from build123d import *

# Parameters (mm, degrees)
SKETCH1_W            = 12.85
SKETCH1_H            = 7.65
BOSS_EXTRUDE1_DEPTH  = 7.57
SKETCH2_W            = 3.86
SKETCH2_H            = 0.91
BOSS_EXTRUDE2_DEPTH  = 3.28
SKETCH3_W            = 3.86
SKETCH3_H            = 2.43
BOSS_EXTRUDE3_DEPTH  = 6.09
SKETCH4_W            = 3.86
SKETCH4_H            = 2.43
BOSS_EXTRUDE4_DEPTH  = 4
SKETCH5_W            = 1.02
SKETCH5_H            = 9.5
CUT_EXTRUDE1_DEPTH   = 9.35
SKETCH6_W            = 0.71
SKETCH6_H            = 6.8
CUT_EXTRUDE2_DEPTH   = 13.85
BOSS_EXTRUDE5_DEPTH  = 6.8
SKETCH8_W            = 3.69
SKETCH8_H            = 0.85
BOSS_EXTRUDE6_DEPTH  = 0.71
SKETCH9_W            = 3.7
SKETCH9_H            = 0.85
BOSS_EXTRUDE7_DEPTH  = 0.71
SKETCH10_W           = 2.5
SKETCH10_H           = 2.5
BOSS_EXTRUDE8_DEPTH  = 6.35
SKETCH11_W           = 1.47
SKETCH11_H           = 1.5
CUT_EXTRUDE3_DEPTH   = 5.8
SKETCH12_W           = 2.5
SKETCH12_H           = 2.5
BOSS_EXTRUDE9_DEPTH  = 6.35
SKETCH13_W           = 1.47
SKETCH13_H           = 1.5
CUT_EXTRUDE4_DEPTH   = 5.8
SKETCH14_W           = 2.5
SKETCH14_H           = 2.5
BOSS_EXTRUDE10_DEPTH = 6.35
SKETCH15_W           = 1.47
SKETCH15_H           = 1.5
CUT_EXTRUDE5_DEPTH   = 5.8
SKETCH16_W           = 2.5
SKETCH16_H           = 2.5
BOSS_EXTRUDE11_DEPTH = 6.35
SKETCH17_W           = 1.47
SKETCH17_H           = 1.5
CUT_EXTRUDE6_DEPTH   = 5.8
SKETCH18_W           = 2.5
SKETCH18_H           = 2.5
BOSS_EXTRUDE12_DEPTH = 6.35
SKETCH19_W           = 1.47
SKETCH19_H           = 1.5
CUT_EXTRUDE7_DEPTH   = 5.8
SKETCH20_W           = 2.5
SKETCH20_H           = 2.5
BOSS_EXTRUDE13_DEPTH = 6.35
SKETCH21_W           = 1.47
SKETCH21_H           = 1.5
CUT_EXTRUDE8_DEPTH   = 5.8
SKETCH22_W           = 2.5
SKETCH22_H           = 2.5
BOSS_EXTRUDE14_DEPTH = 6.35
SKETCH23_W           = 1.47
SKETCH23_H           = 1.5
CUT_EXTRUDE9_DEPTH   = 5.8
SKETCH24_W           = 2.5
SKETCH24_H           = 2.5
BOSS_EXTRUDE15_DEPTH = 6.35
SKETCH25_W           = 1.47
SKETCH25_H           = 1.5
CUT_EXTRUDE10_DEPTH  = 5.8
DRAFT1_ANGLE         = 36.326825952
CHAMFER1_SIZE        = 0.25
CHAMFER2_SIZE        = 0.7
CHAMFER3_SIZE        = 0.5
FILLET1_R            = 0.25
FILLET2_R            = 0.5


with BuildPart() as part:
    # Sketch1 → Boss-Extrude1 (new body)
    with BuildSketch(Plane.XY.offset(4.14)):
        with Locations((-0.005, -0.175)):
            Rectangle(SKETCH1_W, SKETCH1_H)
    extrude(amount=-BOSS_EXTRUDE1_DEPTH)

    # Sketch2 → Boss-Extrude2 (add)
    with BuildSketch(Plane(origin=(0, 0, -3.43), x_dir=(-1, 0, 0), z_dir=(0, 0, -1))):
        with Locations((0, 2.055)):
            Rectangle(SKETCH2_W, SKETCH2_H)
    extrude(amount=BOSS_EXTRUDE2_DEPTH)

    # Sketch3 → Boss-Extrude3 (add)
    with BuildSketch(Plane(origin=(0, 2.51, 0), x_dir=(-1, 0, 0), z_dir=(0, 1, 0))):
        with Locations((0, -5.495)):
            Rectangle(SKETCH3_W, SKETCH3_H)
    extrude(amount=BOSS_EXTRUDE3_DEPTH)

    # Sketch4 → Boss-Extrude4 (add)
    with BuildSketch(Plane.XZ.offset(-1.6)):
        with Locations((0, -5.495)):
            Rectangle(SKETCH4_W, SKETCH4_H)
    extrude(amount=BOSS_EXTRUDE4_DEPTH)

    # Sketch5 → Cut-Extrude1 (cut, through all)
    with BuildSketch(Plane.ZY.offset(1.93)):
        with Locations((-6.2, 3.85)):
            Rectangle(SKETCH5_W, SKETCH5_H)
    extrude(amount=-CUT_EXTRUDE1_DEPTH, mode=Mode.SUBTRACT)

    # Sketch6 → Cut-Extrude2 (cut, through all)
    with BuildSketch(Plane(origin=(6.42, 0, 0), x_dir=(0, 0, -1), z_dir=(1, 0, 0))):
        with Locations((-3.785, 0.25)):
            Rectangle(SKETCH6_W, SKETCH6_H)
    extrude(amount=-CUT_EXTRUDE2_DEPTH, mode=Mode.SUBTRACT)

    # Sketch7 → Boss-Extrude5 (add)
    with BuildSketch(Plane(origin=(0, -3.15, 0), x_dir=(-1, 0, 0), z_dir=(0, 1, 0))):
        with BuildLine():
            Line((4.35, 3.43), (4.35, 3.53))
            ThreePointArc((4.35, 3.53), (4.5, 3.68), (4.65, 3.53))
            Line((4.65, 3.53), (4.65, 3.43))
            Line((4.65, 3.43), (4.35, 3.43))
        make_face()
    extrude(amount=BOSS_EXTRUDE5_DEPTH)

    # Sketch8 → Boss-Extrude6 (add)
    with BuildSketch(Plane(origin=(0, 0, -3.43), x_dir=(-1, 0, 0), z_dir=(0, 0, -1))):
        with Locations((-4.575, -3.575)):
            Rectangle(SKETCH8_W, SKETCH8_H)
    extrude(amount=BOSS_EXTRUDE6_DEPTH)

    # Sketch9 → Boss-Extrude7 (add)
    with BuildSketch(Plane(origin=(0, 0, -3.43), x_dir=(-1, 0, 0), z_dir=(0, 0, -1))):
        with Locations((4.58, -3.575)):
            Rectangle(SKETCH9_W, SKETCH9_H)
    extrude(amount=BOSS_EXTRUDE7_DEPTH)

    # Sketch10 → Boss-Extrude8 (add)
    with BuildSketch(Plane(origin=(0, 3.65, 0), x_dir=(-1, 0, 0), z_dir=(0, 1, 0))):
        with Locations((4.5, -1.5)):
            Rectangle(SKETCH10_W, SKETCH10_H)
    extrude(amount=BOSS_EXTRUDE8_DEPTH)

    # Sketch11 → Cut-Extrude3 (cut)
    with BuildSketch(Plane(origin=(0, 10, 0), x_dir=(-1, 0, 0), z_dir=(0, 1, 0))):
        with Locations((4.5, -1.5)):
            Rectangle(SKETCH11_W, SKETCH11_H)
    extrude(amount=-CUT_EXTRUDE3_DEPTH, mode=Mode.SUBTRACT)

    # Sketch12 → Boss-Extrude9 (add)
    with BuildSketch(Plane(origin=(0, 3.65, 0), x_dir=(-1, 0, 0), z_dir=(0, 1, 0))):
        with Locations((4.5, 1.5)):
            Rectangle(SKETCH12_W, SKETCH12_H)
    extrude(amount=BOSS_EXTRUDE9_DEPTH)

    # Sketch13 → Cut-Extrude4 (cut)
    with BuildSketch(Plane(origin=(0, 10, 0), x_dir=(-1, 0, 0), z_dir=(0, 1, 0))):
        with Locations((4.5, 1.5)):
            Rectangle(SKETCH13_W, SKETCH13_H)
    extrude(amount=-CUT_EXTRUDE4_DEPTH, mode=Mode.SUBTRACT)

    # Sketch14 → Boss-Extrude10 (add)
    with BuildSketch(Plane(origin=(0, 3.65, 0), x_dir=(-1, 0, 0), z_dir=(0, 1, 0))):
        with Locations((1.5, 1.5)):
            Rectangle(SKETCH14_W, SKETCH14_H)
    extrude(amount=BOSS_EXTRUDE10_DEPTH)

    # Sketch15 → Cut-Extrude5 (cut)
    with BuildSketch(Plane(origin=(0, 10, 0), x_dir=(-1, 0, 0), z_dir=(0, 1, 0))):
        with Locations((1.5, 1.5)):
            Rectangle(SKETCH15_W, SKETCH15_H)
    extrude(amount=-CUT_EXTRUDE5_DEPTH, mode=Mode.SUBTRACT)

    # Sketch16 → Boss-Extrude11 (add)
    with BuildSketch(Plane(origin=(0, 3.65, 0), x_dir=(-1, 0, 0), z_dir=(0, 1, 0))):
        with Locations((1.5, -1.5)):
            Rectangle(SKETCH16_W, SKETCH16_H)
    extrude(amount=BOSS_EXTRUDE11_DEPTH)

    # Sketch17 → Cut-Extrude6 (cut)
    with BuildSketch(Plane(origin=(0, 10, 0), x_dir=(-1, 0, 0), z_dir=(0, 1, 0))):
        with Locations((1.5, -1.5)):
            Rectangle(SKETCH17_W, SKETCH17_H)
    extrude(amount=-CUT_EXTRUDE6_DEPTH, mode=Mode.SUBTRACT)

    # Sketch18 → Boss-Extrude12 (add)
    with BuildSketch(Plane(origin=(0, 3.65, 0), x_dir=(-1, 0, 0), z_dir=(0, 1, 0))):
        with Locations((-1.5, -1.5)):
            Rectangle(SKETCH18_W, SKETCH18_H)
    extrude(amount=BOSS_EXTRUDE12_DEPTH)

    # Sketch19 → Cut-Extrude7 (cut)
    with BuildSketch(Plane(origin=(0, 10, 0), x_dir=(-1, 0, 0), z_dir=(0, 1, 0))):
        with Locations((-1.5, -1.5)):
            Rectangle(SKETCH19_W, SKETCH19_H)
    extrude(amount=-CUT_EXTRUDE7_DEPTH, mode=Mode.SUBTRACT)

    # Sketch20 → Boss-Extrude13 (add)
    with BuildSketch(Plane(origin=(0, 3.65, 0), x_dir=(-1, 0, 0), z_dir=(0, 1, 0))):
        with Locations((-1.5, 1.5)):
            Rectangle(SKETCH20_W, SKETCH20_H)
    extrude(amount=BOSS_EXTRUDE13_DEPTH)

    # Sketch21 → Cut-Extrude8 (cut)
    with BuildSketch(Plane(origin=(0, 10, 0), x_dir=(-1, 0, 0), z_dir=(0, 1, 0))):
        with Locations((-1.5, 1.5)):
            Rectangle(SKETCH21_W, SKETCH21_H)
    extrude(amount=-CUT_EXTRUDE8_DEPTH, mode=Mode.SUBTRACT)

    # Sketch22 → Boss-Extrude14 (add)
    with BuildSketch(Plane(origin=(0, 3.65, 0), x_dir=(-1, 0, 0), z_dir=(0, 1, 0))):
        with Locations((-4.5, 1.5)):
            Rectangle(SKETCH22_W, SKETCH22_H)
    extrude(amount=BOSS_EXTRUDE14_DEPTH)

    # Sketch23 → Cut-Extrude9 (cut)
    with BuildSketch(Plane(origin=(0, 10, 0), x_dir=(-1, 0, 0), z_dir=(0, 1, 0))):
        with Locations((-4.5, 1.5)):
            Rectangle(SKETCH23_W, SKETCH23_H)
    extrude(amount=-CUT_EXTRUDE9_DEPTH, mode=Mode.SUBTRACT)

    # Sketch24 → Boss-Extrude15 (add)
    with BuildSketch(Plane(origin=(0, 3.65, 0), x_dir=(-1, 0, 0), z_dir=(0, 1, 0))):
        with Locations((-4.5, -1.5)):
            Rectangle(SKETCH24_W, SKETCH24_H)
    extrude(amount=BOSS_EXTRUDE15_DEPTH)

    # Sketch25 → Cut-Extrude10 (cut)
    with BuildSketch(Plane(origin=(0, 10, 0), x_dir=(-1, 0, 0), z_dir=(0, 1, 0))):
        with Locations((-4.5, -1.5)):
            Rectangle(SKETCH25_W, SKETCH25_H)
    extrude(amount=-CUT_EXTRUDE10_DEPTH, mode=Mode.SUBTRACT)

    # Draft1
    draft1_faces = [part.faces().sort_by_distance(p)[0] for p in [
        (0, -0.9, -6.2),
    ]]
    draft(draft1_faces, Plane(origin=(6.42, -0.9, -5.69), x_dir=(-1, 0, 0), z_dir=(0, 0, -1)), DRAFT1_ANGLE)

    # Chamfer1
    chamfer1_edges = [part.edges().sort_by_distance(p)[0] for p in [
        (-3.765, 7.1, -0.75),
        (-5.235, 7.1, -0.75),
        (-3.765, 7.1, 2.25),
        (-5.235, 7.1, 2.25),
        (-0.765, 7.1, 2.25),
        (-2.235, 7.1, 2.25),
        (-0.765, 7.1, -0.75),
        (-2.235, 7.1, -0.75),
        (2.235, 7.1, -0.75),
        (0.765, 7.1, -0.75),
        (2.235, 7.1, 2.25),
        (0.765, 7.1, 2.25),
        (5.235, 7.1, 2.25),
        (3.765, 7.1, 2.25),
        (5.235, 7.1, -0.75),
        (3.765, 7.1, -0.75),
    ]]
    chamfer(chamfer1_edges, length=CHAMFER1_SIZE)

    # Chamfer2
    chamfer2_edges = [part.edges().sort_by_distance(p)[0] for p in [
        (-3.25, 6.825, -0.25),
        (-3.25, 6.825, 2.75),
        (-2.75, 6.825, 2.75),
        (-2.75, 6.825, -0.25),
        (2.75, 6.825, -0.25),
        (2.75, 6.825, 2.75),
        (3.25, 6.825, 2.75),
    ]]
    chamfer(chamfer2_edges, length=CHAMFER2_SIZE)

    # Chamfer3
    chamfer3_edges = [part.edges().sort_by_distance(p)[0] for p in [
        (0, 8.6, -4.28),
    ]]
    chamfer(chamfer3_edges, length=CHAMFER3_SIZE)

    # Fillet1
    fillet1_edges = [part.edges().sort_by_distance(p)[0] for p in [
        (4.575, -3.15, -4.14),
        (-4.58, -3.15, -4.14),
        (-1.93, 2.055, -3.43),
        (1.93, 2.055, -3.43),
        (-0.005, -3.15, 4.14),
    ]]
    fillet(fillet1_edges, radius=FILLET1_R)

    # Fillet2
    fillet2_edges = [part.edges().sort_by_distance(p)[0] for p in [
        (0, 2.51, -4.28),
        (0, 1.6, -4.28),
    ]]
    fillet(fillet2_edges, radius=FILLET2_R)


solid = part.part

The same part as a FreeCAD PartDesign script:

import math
import FreeCAD as App
import Part
import Sketcher
Q = App.Units.Quantity


def edges_at(feature, points):
    """Names of the edges that pass closest to the given points."""
    edges = feature.Shape.Edges
    near = lambda p: min(range(len(edges)), key=lambda i: edges[i].distToShape(Part.Vertex(*p))[0])
    return sorted({f"Edge{near(p) + 1}" for p in points})


def faces_at(feature, points):
    """Names of the faces that lie closest to the given points."""
    faces = feature.Shape.Faces
    near = lambda p: min(range(len(faces)), key=lambda i: faces[i].distToShape(Part.Vertex(*p))[0])
    return sorted({f"Face{near(p) + 1}" for p in points})

doc = App.newDocument("Part")
body = doc.addObject("PartDesign::Body", "Body")

sketch1 = body.newObject("Sketcher::SketchObject", "Sketch")
sketch1.AttachmentSupport = (doc.getObject("XY_Plane"), [""])
sketch1.MapMode = "FlatFace"
sketch1.AttachmentOffset = App.Placement(App.Vector(0, 0, 4.14), App.Rotation())
sketch1.addGeometry([
    Part.LineSegment(App.Vector(-6, 4, 0), App.Vector(-6, -4, 0)),
    Part.LineSegment(App.Vector(-6, -4, 0), App.Vector(6, -4, 0)),
    Part.LineSegment(App.Vector(6, -4, 0), App.Vector(6, 4, 0)),
    Part.LineSegment(App.Vector(6, 4, 0), App.Vector(-6, 4, 0)),
], False)
sketch1.addConstraint([
    Sketcher.Constraint("Coincident", 0, 2, 1, 1),
    Sketcher.Constraint("Coincident", 1, 2, 2, 1),
    Sketcher.Constraint("Coincident", 2, 2, 3, 1),
    Sketcher.Constraint("Coincident", 3, 2, 0, 1),
    Sketcher.Constraint("Vertical", 0),
    Sketcher.Constraint("Horizontal", 1),
    Sketcher.Constraint("Vertical", 2),
    Sketcher.Constraint("Horizontal", 3),
    Sketcher.Constraint("DistanceY", 0, 2, -1, 1, Q("4 mm")),
    Sketcher.Constraint("DistanceX", 1, 1, 1, 2, Q("12.85 mm")),
    Sketcher.Constraint("DistanceY", 0, 2, 0, 1, Q("7.65 mm")),
    Sketcher.Constraint("DistanceX", 0, 2, -1, 1, Q("6.43 mm")),
])
pad1 = body.newObject("PartDesign::Pad", "Pad")
pad1.Profile = sketch1
pad1.Length = 7.57
pad1.Reversed = True

sketch2 = body.newObject("Sketcher::SketchObject", "Sketch001")
sketch2.AttachmentSupport = (doc.getObject("XY_Plane"), [""])
sketch2.MapMode = "FlatFace"
sketch2.AttachmentOffset = App.Placement(App.Vector(0, 0, -3.43), App.Rotation())
sketch2.addGeometry([
    Part.LineSegment(App.Vector(1.9, 2.5, 0), App.Vector(1.9, 1.6, 0)),
    Part.LineSegment(App.Vector(1.9, 1.6, 0), App.Vector(-1.9, 1.6, 0)),
    Part.LineSegment(App.Vector(-1.9, 1.6, 0), App.Vector(-1.9, 2.5, 0)),
    Part.LineSegment(App.Vector(-1.9, 2.5, 0), App.Vector(1.9, 2.5, 0)),
], False)
sketch2.addConstraint([
    Sketcher.Constraint("Coincident", 0, 2, 1, 1),
    Sketcher.Constraint("Coincident", 1, 2, 2, 1),
    Sketcher.Constraint("Coincident", 2, 2, 3, 1),
    Sketcher.Constraint("Coincident", 3, 2, 0, 1),
    Sketcher.Constraint("Vertical", 0),
    Sketcher.Constraint("Horizontal", 1),
    Sketcher.Constraint("Vertical", 2),
    Sketcher.Constraint("Horizontal", 3),
    Sketcher.Constraint("DistanceX", 1, 2, 1, 1, Q("3.86 mm")),
    Sketcher.Constraint("DistanceY", 0, 2, 0, 1, Q("0.91 mm")),
    Sketcher.Constraint("DistanceY", -1, 1, 0, 2, Q("1.6 mm")),
    Sketcher.Constraint("DistanceX", -1, 1, 0, 2, Q("1.93 mm")),
])
pad2 = body.newObject("PartDesign::Pad", "Pad001")
pad2.Profile = sketch2
pad2.Length = 3.28
pad2.Reversed = True

sketch3 = body.newObject("Sketcher::SketchObject", "Sketch002")
sketch3.AttachmentSupport = (doc.getObject("XZ_Plane"), [""])
sketch3.MapMode = "FlatFace"
sketch3.AttachmentOffset = App.Placement(App.Vector(0, 0, -2.51), App.Rotation())
sketch3.addGeometry([
    Part.LineSegment(App.Vector(1.9, -4.3, 0), App.Vector(1.9, -6.7, 0)),
    Part.LineSegment(App.Vector(1.9, -6.7, 0), App.Vector(-1.9, -6.7, 0)),
    Part.LineSegment(App.Vector(-1.9, -6.7, 0), App.Vector(-1.9, -4.3, 0)),
    Part.LineSegment(App.Vector(-1.9, -4.3, 0), App.Vector(1.9, -4.3, 0)),
], False)
sketch3.addConstraint([
    Sketcher.Constraint("Coincident", 0, 2, 1, 1),
    Sketcher.Constraint("Coincident", 1, 2, 2, 1),
    Sketcher.Constraint("Coincident", 2, 2, 3, 1),
    Sketcher.Constraint("Coincident", 3, 2, 0, 1),
    Sketcher.Constraint("Vertical", 0),
    Sketcher.Constraint("Horizontal", 1),
    Sketcher.Constraint("Vertical", 2),
    Sketcher.Constraint("Horizontal", 3),
    Sketcher.Constraint("DistanceX", 1, 2, 1, 1, Q("3.86 mm")),
    Sketcher.Constraint("DistanceY", 0, 2, 0, 1, Q("2.43 mm")),
    Sketcher.Constraint("DistanceX", -1, 1, 0, 2, Q("1.93 mm")),
    Sketcher.Constraint("DistanceY", 0, 2, -1, 1, Q("6.71 mm")),
])
pad3 = body.newObject("PartDesign::Pad", "Pad002")
pad3.Profile = sketch3
pad3.Length = 6.09
pad3.Reversed = True

sketch4 = body.newObject("Sketcher::SketchObject", "Sketch003")
sketch4.AttachmentSupport = (doc.getObject("XZ_Plane"), [""])
sketch4.MapMode = "FlatFace"
sketch4.AttachmentOffset = App.Placement(App.Vector(0, 0, -1.6), App.Rotation())
sketch4.addGeometry([
    Part.LineSegment(App.Vector(-1.9, -4.3, 0), App.Vector(-1.9, -6.7, 0)),
    Part.LineSegment(App.Vector(-1.9, -6.7, 0), App.Vector(1.9, -6.7, 0)),
    Part.LineSegment(App.Vector(1.9, -6.7, 0), App.Vector(1.9, -4.3, 0)),
    Part.LineSegment(App.Vector(1.9, -4.3, 0), App.Vector(-1.9, -4.3, 0)),
], False)
sketch4.addConstraint([
    Sketcher.Constraint("Coincident", 0, 2, 1, 1),
    Sketcher.Constraint("Coincident", 1, 2, 2, 1),
    Sketcher.Constraint("Coincident", 2, 2, 3, 1),
    Sketcher.Constraint("Coincident", 3, 2, 0, 1),
    Sketcher.Constraint("Vertical", 0),
    Sketcher.Constraint("Horizontal", 1),
    Sketcher.Constraint("Vertical", 2),
    Sketcher.Constraint("Horizontal", 3),
    Sketcher.Constraint("DistanceX", 1, 1, 1, 2, Q("3.86 mm")),
    Sketcher.Constraint("DistanceY", 0, 2, 0, 1, Q("2.43 mm")),
    Sketcher.Constraint("DistanceX", 0, 2, -1, 1, Q("1.93 mm")),
    Sketcher.Constraint("DistanceY", 0, 2, -1, 1, Q("6.71 mm")),
])
pad4 = body.newObject("PartDesign::Pad", "Pad003")
pad4.Profile = sketch4
pad4.Length = 4

sketch5 = body.newObject("Sketcher::SketchObject", "Sketch004")
sketch5.AttachmentSupport = (doc.getObject("YZ_Plane"), [""])
sketch5.MapMode = "FlatFace"
sketch5.AttachmentOffset = App.Placement(App.Vector(0, 0, -1.93), App.Rotation())
sketch5.addGeometry([
    Part.LineSegment(App.Vector(8.6, -6.7, 0), App.Vector(-0.9, -6.7, 0)),
    Part.LineSegment(App.Vector(-0.9, -6.7, 0), App.Vector(-0.9, -5.7, 0)),
    Part.LineSegment(App.Vector(-0.9, -5.7, 0), App.Vector(8.6, -5.7, 0)),
    Part.LineSegment(App.Vector(8.6, -5.7, 0), App.Vector(8.6, -6.7, 0)),
], False)
sketch5.addConstraint([
    Sketcher.Constraint("Coincident", 0, 2, 1, 1),
    Sketcher.Constraint("Coincident", 1, 2, 2, 1),
    Sketcher.Constraint("Coincident", 2, 2, 3, 1),
    Sketcher.Constraint("Coincident", 3, 2, 0, 1),
    Sketcher.Constraint("Horizontal", 0),
    Sketcher.Constraint("Vertical", 1),
    Sketcher.Constraint("Horizontal", 2),
    Sketcher.Constraint("Vertical", 3),
    Sketcher.Constraint("DistanceX", 0, 2, 0, 1, Q("9.5 mm")),
    Sketcher.Constraint("DistanceY", 1, 1, 1, 2, Q("1.02 mm")),
    Sketcher.Constraint("DistanceX", 0, 2, -1, 1, Q("0.9 mm")),
    Sketcher.Constraint("DistanceY", 0, 2, -1, 1, Q("6.71 mm")),
])
pocket1 = body.newObject("PartDesign::Pocket", "Pocket")
pocket1.Profile = sketch5
pocket1.Type = "ThroughAll"
pocket1.Reversed = True

sketch6 = body.newObject("Sketcher::SketchObject", "Sketch005")
sketch6.AttachmentSupport = (doc.getObject("YZ_Plane"), [""])
sketch6.MapMode = "FlatFace"
sketch6.AttachmentOffset = App.Placement(App.Vector(0, 0, 6.42), App.Rotation())
sketch6.addGeometry([
    Part.LineSegment(App.Vector(3.6, 4.1, 0), App.Vector(-3.1, 4.1, 0)),
    Part.LineSegment(App.Vector(-3.1, 4.1, 0), App.Vector(-3.1, 3.4, 0)),
    Part.LineSegment(App.Vector(-3.1, 3.4, 0), App.Vector(3.6, 3.4, 0)),
    Part.LineSegment(App.Vector(3.6, 3.4, 0), App.Vector(3.6, 4.1, 0)),
], False)
sketch6.addConstraint([
    Sketcher.Constraint("Coincident", 0, 2, 1, 1),
    Sketcher.Constraint("Coincident", 1, 2, 2, 1),
    Sketcher.Constraint("Coincident", 2, 2, 3, 1),
    Sketcher.Constraint("Coincident", 3, 2, 0, 1),
    Sketcher.Constraint("Horizontal", 0),
    Sketcher.Constraint("Vertical", 1),
    Sketcher.Constraint("Horizontal", 2),
    Sketcher.Constraint("Vertical", 3),
    Sketcher.Constraint("DistanceX", 0, 2, 0, 1, Q("6.8 mm")),
    Sketcher.Constraint("DistanceY", 1, 2, 1, 1, Q("0.71 mm")),
    Sketcher.Constraint("DistanceX", 0, 2, -1, 1, Q("3.15 mm")),
    Sketcher.Constraint("DistanceY", -1, 1, 0, 2, Q("4.14 mm")),
])
pocket2 = body.newObject("PartDesign::Pocket", "Pocket001")
pocket2.Profile = sketch6
pocket2.Type = "ThroughAll"

sketch7 = body.newObject("Sketcher::SketchObject", "Sketch006")
sketch7.AttachmentSupport = (doc.getObject("XZ_Plane"), [""])
sketch7.MapMode = "FlatFace"
sketch7.AttachmentOffset = App.Placement(App.Vector(0, 0, 3.15), App.Rotation())
sketch7.addGeometry([
    Part.LineSegment(App.Vector(-4.35, 3.53, 0), App.Vector(-4.35, 3.43, 0)),
    Part.LineSegment(App.Vector(-4.35, 3.43, 0), App.Vector(-4.65, 3.43, 0)),
    Part.LineSegment(App.Vector(-4.65, 3.43, 0), App.Vector(-4.65, 3.53, 0)),
    Part.ArcOfCircle(Part.Circle(App.Vector(-4.5, 3.53, 0), App.Vector(0, 0, 1), 0.15), math.radians(0), math.radians(180)),
], False)
sketch7.addConstraint([
    Sketcher.Constraint("Coincident", 0, 2, 1, 1),
    Sketcher.Constraint("Coincident", 1, 2, 2, 1),
    Sketcher.Constraint("Tangent", 2, 2, 3, 2),
    Sketcher.Constraint("Tangent", 3, 1, 0, 1),
    Sketcher.Constraint("Vertical", 0),
    Sketcher.Constraint("Horizontal", 1),
    Sketcher.Constraint("Vertical", 2),
    Sketcher.Constraint("Radius", 3, Q("0.15 mm")),
    Sketcher.Constraint("DistanceY", 0, 2, 0, 1, Q("0.1 mm")),
    Sketcher.Constraint("DistanceX", 3, 3, -1, 1, Q("4.5 mm")),
    Sketcher.Constraint("DistanceY", -1, 1, 3, 3, Q("3.53 mm")),
])
pad5 = body.newObject("PartDesign::Pad", "Pad004")
pad5.Profile = sketch7
pad5.Length = 6.8
pad5.Reversed = True

sketch8 = body.newObject("Sketcher::SketchObject", "Sketch007")
sketch8.AttachmentSupport = (doc.getObject("XY_Plane"), [""])
sketch8.MapMode = "FlatFace"
sketch8.AttachmentOffset = App.Placement(App.Vector(0, 0, -3.43), App.Rotation())
sketch8.addGeometry([
    Part.LineSegment(App.Vector(6.4, -3.1, 0), App.Vector(6.4, -4, 0)),
    Part.LineSegment(App.Vector(6.4, -4, 0), App.Vector(2.7, -4, 0)),
    Part.LineSegment(App.Vector(2.7, -4, 0), App.Vector(2.7, -3.1, 0)),
    Part.LineSegment(App.Vector(2.7, -3.1, 0), App.Vector(6.4, -3.1, 0)),
], False)
sketch8.addConstraint([
    Sketcher.Constraint("Coincident", 0, 2, 1, 1),
    Sketcher.Constraint("Coincident", 1, 2, 2, 1),
    Sketcher.Constraint("Coincident", 2, 2, 3, 1),
    Sketcher.Constraint("Coincident", 3, 2, 0, 1),
    Sketcher.Constraint("Vertical", 0),
    Sketcher.Constraint("Horizontal", 1),
    Sketcher.Constraint("Vertical", 2),
    Sketcher.Constraint("Horizontal", 3),
    Sketcher.Constraint("DistanceY", 0, 2, -1, 1, Q("4 mm")),
    Sketcher.Constraint("DistanceX", 1, 2, 1, 1, Q("3.69 mm")),
    Sketcher.Constraint("DistanceY", 0, 2, 0, 1, Q("0.85 mm")),
    Sketcher.Constraint("DistanceX", -1, 1, 0, 2, Q("6.42 mm")),
])
pad6 = body.newObject("PartDesign::Pad", "Pad005")
pad6.Profile = sketch8
pad6.Length = 0.71
pad6.Reversed = True

sketch9 = body.newObject("Sketcher::SketchObject", "Sketch008")
sketch9.AttachmentSupport = (doc.getObject("XY_Plane"), [""])
sketch9.MapMode = "FlatFace"
sketch9.AttachmentOffset = App.Placement(App.Vector(0, 0, -3.43), App.Rotation())
sketch9.addGeometry([
    Part.LineSegment(App.Vector(-2.7, -3.1, 0), App.Vector(-2.7, -4, 0)),
    Part.LineSegment(App.Vector(-2.7, -4, 0), App.Vector(-6.4, -4, 0)),
    Part.LineSegment(App.Vector(-6.4, -4, 0), App.Vector(-6.4, -3.1, 0)),
    Part.LineSegment(App.Vector(-6.4, -3.1, 0), App.Vector(-2.7, -3.1, 0)),
], False)
sketch9.addConstraint([
    Sketcher.Constraint("Coincident", 0, 2, 1, 1),
    Sketcher.Constraint("Coincident", 1, 2, 2, 1),
    Sketcher.Constraint("Coincident", 2, 2, 3, 1),
    Sketcher.Constraint("Coincident", 3, 2, 0, 1),
    Sketcher.Constraint("Vertical", 0),
    Sketcher.Constraint("Horizontal", 1),
    Sketcher.Constraint("Vertical", 2),
    Sketcher.Constraint("Horizontal", 3),
    Sketcher.Constraint("DistanceX", 1, 2, 1, 1, Q("3.7 mm")),
    Sketcher.Constraint("DistanceY", 0, 2, -1, 1, Q("4 mm")),
    Sketcher.Constraint("DistanceY", 0, 2, 0, 1, Q("0.85 mm")),
    Sketcher.Constraint("DistanceX", 0, 2, -1, 1, Q("2.73 mm")),
])
pad7 = body.newObject("PartDesign::Pad", "Pad006")
pad7.Profile = sketch9
pad7.Length = 0.71
pad7.Reversed = True

sketch10 = body.newObject("Sketcher::SketchObject", "Sketch009")
sketch10.AttachmentSupport = (doc.getObject("XZ_Plane"), [""])
sketch10.MapMode = "FlatFace"
sketch10.AttachmentOffset = App.Placement(App.Vector(0, 0, -3.65), App.Rotation())
sketch10.addGeometry([
    Part.LineSegment(App.Vector(-3.2, -0.2, 0), App.Vector(-3.2, -2.8, 0)),
    Part.LineSegment(App.Vector(-3.2, -2.8, 0), App.Vector(-5.8, -2.8, 0)),
    Part.LineSegment(App.Vector(-5.8, -2.8, 0), App.Vector(-5.8, -0.2, 0)),
    Part.LineSegment(App.Vector(-5.8, -0.2, 0), App.Vector(-3.2, -0.2, 0)),
], False)
sketch10.addConstraint([
    Sketcher.Constraint("Coincident", 0, 2, 1, 1),
    Sketcher.Constraint("Coincident", 1, 2, 2, 1),
    Sketcher.Constraint("Coincident", 2, 2, 3, 1),
    Sketcher.Constraint("Coincident", 3, 2, 0, 1),
    Sketcher.Constraint("Vertical", 0),
    Sketcher.Constraint("Horizontal", 1),
    Sketcher.Constraint("Vertical", 2),
    Sketcher.Constraint("Horizontal", 3),
    Sketcher.Constraint("Equal", 3, 0),
    Sketcher.Constraint("DistanceX", 1, 2, 1, 1, Q("2.5 mm")),
    Sketcher.Constraint("DistanceX", 0, 2, -1, 1, Q("3.25 mm")),
    Sketcher.Constraint("DistanceY", 0, 2, -1, 1, Q("2.75 mm")),
])
pad8 = body.newObject("PartDesign::Pad", "Pad007")
pad8.Profile = sketch10
pad8.Length = 6.35
pad8.Reversed = True

sketch11 = body.newObject("Sketcher::SketchObject", "Sketch010")
sketch11.AttachmentSupport = (doc.getObject("XZ_Plane"), [""])
sketch11.MapMode = "FlatFace"
sketch11.AttachmentOffset = App.Placement(App.Vector(0, 0, -10), App.Rotation())
sketch11.addGeometry([
    Part.LineSegment(App.Vector(-3.8, -0.8, 0), App.Vector(-3.8, -2.2, 0)),
    Part.LineSegment(App.Vector(-3.8, -2.2, 0), App.Vector(-5.2, -2.2, 0)),
    Part.LineSegment(App.Vector(-5.2, -2.2, 0), App.Vector(-5.2, -0.8, 0)),
    Part.LineSegment(App.Vector(-5.2, -0.8, 0), App.Vector(-3.8, -0.8, 0)),
], False)
sketch11.addConstraint([
    Sketcher.Constraint("Coincident", 0, 2, 1, 1),
    Sketcher.Constraint("Coincident", 1, 2, 2, 1),
    Sketcher.Constraint("Coincident", 2, 2, 3, 1),
    Sketcher.Constraint("Coincident", 3, 2, 0, 1),
    Sketcher.Constraint("Vertical", 0),
    Sketcher.Constraint("Horizontal", 1),
    Sketcher.Constraint("Vertical", 2),
    Sketcher.Constraint("Horizontal", 3),
    Sketcher.Constraint("DistanceY", 0, 2, 0, 1, Q("1.5 mm")),
    Sketcher.Constraint("DistanceX", 1, 2, 1, 1, Q("1.47 mm")),
    Sketcher.Constraint("DistanceY", 0, 2, -1, 1, Q("2.25 mm")),
    Sketcher.Constraint("DistanceX", 0, 2, -1, 1, Q("3.765 mm")),
])
pocket3 = body.newObject("PartDesign::Pocket", "Pocket002")
pocket3.Profile = sketch11
pocket3.Length = 5.8
pocket3.Reversed = True

sketch12 = body.newObject("Sketcher::SketchObject", "Sketch011")
sketch12.AttachmentSupport = (doc.getObject("XZ_Plane"), [""])
sketch12.MapMode = "FlatFace"
sketch12.AttachmentOffset = App.Placement(App.Vector(0, 0, -3.65), App.Rotation())
sketch12.addGeometry([
    Part.LineSegment(App.Vector(-3.2, 2.8, 0), App.Vector(-3.2, 0.2, 0)),
    Part.LineSegment(App.Vector(-3.2, 0.2, 0), App.Vector(-5.8, 0.2, 0)),
    Part.LineSegment(App.Vector(-5.8, 0.2, 0), App.Vector(-5.8, 2.8, 0)),
    Part.LineSegment(App.Vector(-5.8, 2.8, 0), App.Vector(-3.2, 2.8, 0)),
], False)
sketch12.addConstraint([
    Sketcher.Constraint("Coincident", 0, 2, 1, 1),
    Sketcher.Constraint("Coincident", 1, 2, 2, 1),
    Sketcher.Constraint("Coincident", 2, 2, 3, 1),
    Sketcher.Constraint("Coincident", 3, 2, 0, 1),
    Sketcher.Constraint("Vertical", 0),
    Sketcher.Constraint("Horizontal", 1),
    Sketcher.Constraint("Vertical", 2),
    Sketcher.Constraint("Horizontal", 3),
    Sketcher.Constraint("Equal", 3, 0),
    Sketcher.Constraint("DistanceX", 1, 2, 1, 1, Q("2.5 mm")),
    Sketcher.Constraint("DistanceX", 0, 2, -1, 1, Q("3.25 mm")),
    Sketcher.Constraint("DistanceY", -1, 1, 0, 2, Q("0.25 mm")),
])
pad9 = body.newObject("PartDesign::Pad", "Pad008")
pad9.Profile = sketch12
pad9.Length = 6.35
pad9.Reversed = True

sketch13 = body.newObject("Sketcher::SketchObject", "Sketch012")
sketch13.AttachmentSupport = (doc.getObject("XZ_Plane"), [""])
sketch13.MapMode = "FlatFace"
sketch13.AttachmentOffset = App.Placement(App.Vector(0, 0, -10), App.Rotation())
sketch13.addGeometry([
    Part.LineSegment(App.Vector(-3.8, 2.2, 0), App.Vector(-3.8, 0.8, 0)),
    Part.LineSegment(App.Vector(-3.8, 0.8, 0), App.Vector(-5.2, 0.8, 0)),
    Part.LineSegment(App.Vector(-5.2, 0.8, 0), App.Vector(-5.2, 2.2, 0)),
    Part.LineSegment(App.Vector(-5.2, 2.2, 0), App.Vector(-3.8, 2.2, 0)),
], False)
sketch13.addConstraint([
    Sketcher.Constraint("Coincident", 0, 2, 1, 1),
    Sketcher.Constraint("Coincident", 1, 2, 2, 1),
    Sketcher.Constraint("Coincident", 2, 2, 3, 1),
    Sketcher.Constraint("Coincident", 3, 2, 0, 1),
    Sketcher.Constraint("Vertical", 0),
    Sketcher.Constraint("Horizontal", 1),
    Sketcher.Constraint("Vertical", 2),
    Sketcher.Constraint("Horizontal", 3),
    Sketcher.Constraint("DistanceY", 0, 2, 0, 1, Q("1.5 mm")),
    Sketcher.Constraint("DistanceX", 1, 2, 1, 1, Q("1.47 mm")),
    Sketcher.Constraint("DistanceY", -1, 1, 0, 2, Q("0.75 mm")),
    Sketcher.Constraint("DistanceX", 0, 2, -1, 1, Q("3.765 mm")),
])
pocket4 = body.newObject("PartDesign::Pocket", "Pocket003")
pocket4.Profile = sketch13
pocket4.Length = 5.8
pocket4.Reversed = True

sketch14 = body.newObject("Sketcher::SketchObject", "Sketch013")
sketch14.AttachmentSupport = (doc.getObject("XZ_Plane"), [""])
sketch14.MapMode = "FlatFace"
sketch14.AttachmentOffset = App.Placement(App.Vector(0, 0, -3.65), App.Rotation())
sketch14.addGeometry([
    Part.LineSegment(App.Vector(-0.2, 2.8, 0), App.Vector(-0.2, 0.2, 0)),
    Part.LineSegment(App.Vector(-0.2, 0.2, 0), App.Vector(-2.8, 0.2, 0)),
    Part.LineSegment(App.Vector(-2.8, 0.2, 0), App.Vector(-2.8, 2.8, 0)),
    Part.LineSegment(App.Vector(-2.8, 2.8, 0), App.Vector(-0.2, 2.8, 0)),
], False)
sketch14.addConstraint([
    Sketcher.Constraint("Coincident", 0, 2, 1, 1),
    Sketcher.Constraint("Coincident", 1, 2, 2, 1),
    Sketcher.Constraint("Coincident", 2, 2, 3, 1),
    Sketcher.Constraint("Coincident", 3, 2, 0, 1),
    Sketcher.Constraint("Vertical", 0),
    Sketcher.Constraint("Horizontal", 1),
    Sketcher.Constraint("Vertical", 2),
    Sketcher.Constraint("Horizontal", 3),
    Sketcher.Constraint("Equal", 3, 0),
    Sketcher.Constraint("DistanceX", 1, 2, 1, 1, Q("2.5 mm")),
    Sketcher.Constraint("DistanceX", 0, 2, -1, 1, Q("0.25 mm")),
    Sketcher.Constraint("DistanceY", -1, 1, 0, 2, Q("0.25 mm")),
])
pad10 = body.newObject("PartDesign::Pad", "Pad009")
pad10.Profile = sketch14
pad10.Length = 6.35
pad10.Reversed = True

sketch15 = body.newObject("Sketcher::SketchObject", "Sketch014")
sketch15.AttachmentSupport = (doc.getObject("XZ_Plane"), [""])
sketch15.MapMode = "FlatFace"
sketch15.AttachmentOffset = App.Placement(App.Vector(0, 0, -10), App.Rotation())
sketch15.addGeometry([
    Part.LineSegment(App.Vector(-0.8, 2.2, 0), App.Vector(-0.8, 0.8, 0)),
    Part.LineSegment(App.Vector(-0.8, 0.8, 0), App.Vector(-2.2, 0.8, 0)),
    Part.LineSegment(App.Vector(-2.2, 0.8, 0), App.Vector(-2.2, 2.2, 0)),
    Part.LineSegment(App.Vector(-2.2, 2.2, 0), App.Vector(-0.8, 2.2, 0)),
], False)
sketch15.addConstraint([
    Sketcher.Constraint("Coincident", 0, 2, 1, 1),
    Sketcher.Constraint("Coincident", 1, 2, 2, 1),
    Sketcher.Constraint("Coincident", 2, 2, 3, 1),
    Sketcher.Constraint("Coincident", 3, 2, 0, 1),
    Sketcher.Constraint("Vertical", 0),
    Sketcher.Constraint("Horizontal", 1),
    Sketcher.Constraint("Vertical", 2),
    Sketcher.Constraint("Horizontal", 3),
    Sketcher.Constraint("DistanceY", 0, 2, 0, 1, Q("1.5 mm")),
    Sketcher.Constraint("DistanceX", 1, 2, 1, 1, Q("1.47 mm")),
    Sketcher.Constraint("DistanceY", -1, 1, 0, 2, Q("0.75 mm")),
    Sketcher.Constraint("DistanceX", 0, 2, -1, 1, Q("0.765 mm")),
])
pocket5 = body.newObject("PartDesign::Pocket", "Pocket004")
pocket5.Profile = sketch15
pocket5.Length = 5.8
pocket5.Reversed = True

sketch16 = body.newObject("Sketcher::SketchObject", "Sketch015")
sketch16.AttachmentSupport = (doc.getObject("XZ_Plane"), [""])
sketch16.MapMode = "FlatFace"
sketch16.AttachmentOffset = App.Placement(App.Vector(0, 0, -3.65), App.Rotation())
sketch16.addGeometry([
    Part.LineSegment(App.Vector(-0.2, -0.2, 0), App.Vector(-0.2, -2.8, 0)),
    Part.LineSegment(App.Vector(-0.2, -2.8, 0), App.Vector(-2.8, -2.8, 0)),
    Part.LineSegment(App.Vector(-2.8, -2.8, 0), App.Vector(-2.8, -0.2, 0)),
    Part.LineSegment(App.Vector(-2.8, -0.2, 0), App.Vector(-0.2, -0.2, 0)),
], False)
sketch16.addConstraint([
    Sketcher.Constraint("Coincident", 0, 2, 1, 1),
    Sketcher.Constraint("Coincident", 1, 2, 2, 1),
    Sketcher.Constraint("Coincident", 2, 2, 3, 1),
    Sketcher.Constraint("Coincident", 3, 2, 0, 1),
    Sketcher.Constraint("Vertical", 0),
    Sketcher.Constraint("Horizontal", 1),
    Sketcher.Constraint("Vertical", 2),
    Sketcher.Constraint("Horizontal", 3),
    Sketcher.Constraint("Equal", 3, 0),
    Sketcher.Constraint("DistanceX", 1, 2, 1, 1, Q("2.5 mm")),
    Sketcher.Constraint("DistanceX", 0, 2, -1, 1, Q("0.25 mm")),
    Sketcher.Constraint("DistanceY", 0, 2, -1, 1, Q("2.75 mm")),
])
pad11 = body.newObject("PartDesign::Pad", "Pad010")
pad11.Profile = sketch16
pad11.Length = 6.35
pad11.Reversed = True

sketch17 = body.newObject("Sketcher::SketchObject", "Sketch016")
sketch17.AttachmentSupport = (doc.getObject("XZ_Plane"), [""])
sketch17.MapMode = "FlatFace"
sketch17.AttachmentOffset = App.Placement(App.Vector(0, 0, -10), App.Rotation())
sketch17.addGeometry([
    Part.LineSegment(App.Vector(-0.8, -0.8, 0), App.Vector(-0.8, -2.2, 0)),
    Part.LineSegment(App.Vector(-0.8, -2.2, 0), App.Vector(-2.2, -2.2, 0)),
    Part.LineSegment(App.Vector(-2.2, -2.2, 0), App.Vector(-2.2, -0.8, 0)),
    Part.LineSegment(App.Vector(-2.2, -0.8, 0), App.Vector(-0.8, -0.8, 0)),
], False)
sketch17.addConstraint([
    Sketcher.Constraint("Coincident", 0, 2, 1, 1),
    Sketcher.Constraint("Coincident", 1, 2, 2, 1),
    Sketcher.Constraint("Coincident", 2, 2, 3, 1),
    Sketcher.Constraint("Coincident", 3, 2, 0, 1),
    Sketcher.Constraint("Vertical", 0),
    Sketcher.Constraint("Horizontal", 1),
    Sketcher.Constraint("Vertical", 2),
    Sketcher.Constraint("Horizontal", 3),
    Sketcher.Constraint("DistanceY", 0, 2, 0, 1, Q("1.5 mm")),
    Sketcher.Constraint("DistanceX", 1, 2, 1, 1, Q("1.47 mm")),
    Sketcher.Constraint("DistanceY", 0, 2, -1, 1, Q("2.25 mm")),
    Sketcher.Constraint("DistanceX", 0, 2, -1, 1, Q("0.765 mm")),
])
pocket6 = body.newObject("PartDesign::Pocket", "Pocket005")
pocket6.Profile = sketch17
pocket6.Length = 5.8
pocket6.Reversed = True

sketch18 = body.newObject("Sketcher::SketchObject", "Sketch017")
sketch18.AttachmentSupport = (doc.getObject("XZ_Plane"), [""])
sketch18.MapMode = "FlatFace"
sketch18.AttachmentOffset = App.Placement(App.Vector(0, 0, -3.65), App.Rotation())
sketch18.addGeometry([
    Part.LineSegment(App.Vector(2.8, -0.2, 0), App.Vector(2.8, -2.8, 0)),
    Part.LineSegment(App.Vector(2.8, -2.8, 0), App.Vector(0.2, -2.8, 0)),
    Part.LineSegment(App.Vector(0.2, -2.8, 0), App.Vector(0.2, -0.2, 0)),
    Part.LineSegment(App.Vector(0.2, -0.2, 0), App.Vector(2.8, -0.2, 0)),
], False)
sketch18.addConstraint([
    Sketcher.Constraint("Coincident", 0, 2, 1, 1),
    Sketcher.Constraint("Coincident", 1, 2, 2, 1),
    Sketcher.Constraint("Coincident", 2, 2, 3, 1),
    Sketcher.Constraint("Coincident", 3, 2, 0, 1),
    Sketcher.Constraint("Vertical", 0),
    Sketcher.Constraint("Horizontal", 1),
    Sketcher.Constraint("Vertical", 2),
    Sketcher.Constraint("Horizontal", 3),
    Sketcher.Constraint("Equal", 3, 0),
    Sketcher.Constraint("DistanceX", 1, 2, 1, 1, Q("2.5 mm")),
    Sketcher.Constraint("DistanceX", -1, 1, 0, 2, Q("2.75 mm")),
    Sketcher.Constraint("DistanceY", 0, 2, -1, 1, Q("2.75 mm")),
])
pad12 = body.newObject("PartDesign::Pad", "Pad011")
pad12.Profile = sketch18
pad12.Length = 6.35
pad12.Reversed = True

sketch19 = body.newObject("Sketcher::SketchObject", "Sketch018")
sketch19.AttachmentSupport = (doc.getObject("XZ_Plane"), [""])
sketch19.MapMode = "FlatFace"
sketch19.AttachmentOffset = App.Placement(App.Vector(0, 0, -10), App.Rotation())
sketch19.addGeometry([
    Part.LineSegment(App.Vector(2.2, -0.8, 0), App.Vector(2.2, -2.2, 0)),
    Part.LineSegment(App.Vector(2.2, -2.2, 0), App.Vector(0.8, -2.2, 0)),
    Part.LineSegment(App.Vector(0.8, -2.2, 0), App.Vector(0.8, -0.8, 0)),
    Part.LineSegment(App.Vector(0.8, -0.8, 0), App.Vector(2.2, -0.8, 0)),
], False)
sketch19.addConstraint([
    Sketcher.Constraint("Coincident", 0, 2, 1, 1),
    Sketcher.Constraint("Coincident", 1, 2, 2, 1),
    Sketcher.Constraint("Coincident", 2, 2, 3, 1),
    Sketcher.Constraint("Coincident", 3, 2, 0, 1),
    Sketcher.Constraint("Vertical", 0),
    Sketcher.Constraint("Horizontal", 1),
    Sketcher.Constraint("Vertical", 2),
    Sketcher.Constraint("Horizontal", 3),
    Sketcher.Constraint("DistanceY", 0, 2, 0, 1, Q("1.5 mm")),
    Sketcher.Constraint("DistanceX", 1, 2, 1, 1, Q("1.47 mm")),
    Sketcher.Constraint("DistanceY", 0, 2, -1, 1, Q("2.25 mm")),
    Sketcher.Constraint("DistanceX", -1, 1, 0, 2, Q("2.235 mm")),
])
pocket7 = body.newObject("PartDesign::Pocket", "Pocket006")
pocket7.Profile = sketch19
pocket7.Length = 5.8
pocket7.Reversed = True

sketch20 = body.newObject("Sketcher::SketchObject", "Sketch019")
sketch20.AttachmentSupport = (doc.getObject("XZ_Plane"), [""])
sketch20.MapMode = "FlatFace"
sketch20.AttachmentOffset = App.Placement(App.Vector(0, 0, -3.65), App.Rotation())
sketch20.addGeometry([
    Part.LineSegment(App.Vector(2.8, 2.8, 0), App.Vector(2.8, 0.2, 0)),
    Part.LineSegment(App.Vector(2.8, 0.2, 0), App.Vector(0.2, 0.2, 0)),
    Part.LineSegment(App.Vector(0.2, 0.2, 0), App.Vector(0.2, 2.8, 0)),
    Part.LineSegment(App.Vector(0.2, 2.8, 0), App.Vector(2.8, 2.8, 0)),
], False)
sketch20.addConstraint([
    Sketcher.Constraint("Coincident", 0, 2, 1, 1),
    Sketcher.Constraint("Coincident", 1, 2, 2, 1),
    Sketcher.Constraint("Coincident", 2, 2, 3, 1),
    Sketcher.Constraint("Coincident", 3, 2, 0, 1),
    Sketcher.Constraint("Vertical", 0),
    Sketcher.Constraint("Horizontal", 1),
    Sketcher.Constraint("Vertical", 2),
    Sketcher.Constraint("Horizontal", 3),
    Sketcher.Constraint("Equal", 3, 0),
    Sketcher.Constraint("DistanceX", 1, 2, 1, 1, Q("2.5 mm")),
    Sketcher.Constraint("DistanceX", -1, 1, 0, 2, Q("2.75 mm")),
    Sketcher.Constraint("DistanceY", -1, 1, 0, 2, Q("0.25 mm")),
])
pad13 = body.newObject("PartDesign::Pad", "Pad012")
pad13.Profile = sketch20
pad13.Length = 6.35
pad13.Reversed = True

sketch21 = body.newObject("Sketcher::SketchObject", "Sketch020")
sketch21.AttachmentSupport = (doc.getObject("XZ_Plane"), [""])
sketch21.MapMode = "FlatFace"
sketch21.AttachmentOffset = App.Placement(App.Vector(0, 0, -10), App.Rotation())
sketch21.addGeometry([
    Part.LineSegment(App.Vector(2.2, 2.2, 0), App.Vector(2.2, 0.8, 0)),
    Part.LineSegment(App.Vector(2.2, 0.8, 0), App.Vector(0.8, 0.8, 0)),
    Part.LineSegment(App.Vector(0.8, 0.8, 0), App.Vector(0.8, 2.2, 0)),
    Part.LineSegment(App.Vector(0.8, 2.2, 0), App.Vector(2.2, 2.2, 0)),
], False)
sketch21.addConstraint([
    Sketcher.Constraint("Coincident", 0, 2, 1, 1),
    Sketcher.Constraint("Coincident", 1, 2, 2, 1),
    Sketcher.Constraint("Coincident", 2, 2, 3, 1),
    Sketcher.Constraint("Coincident", 3, 2, 0, 1),
    Sketcher.Constraint("Vertical", 0),
    Sketcher.Constraint("Horizontal", 1),
    Sketcher.Constraint("Vertical", 2),
    Sketcher.Constraint("Horizontal", 3),
    Sketcher.Constraint("DistanceY", 0, 2, 0, 1, Q("1.5 mm")),
    Sketcher.Constraint("DistanceX", 1, 2, 1, 1, Q("1.47 mm")),
    Sketcher.Constraint("DistanceY", -1, 1, 0, 2, Q("0.75 mm")),
    Sketcher.Constraint("DistanceX", -1, 1, 0, 2, Q("2.235 mm")),
])
pocket8 = body.newObject("PartDesign::Pocket", "Pocket007")
pocket8.Profile = sketch21
pocket8.Length = 5.8
pocket8.Reversed = True

sketch22 = body.newObject("Sketcher::SketchObject", "Sketch021")
sketch22.AttachmentSupport = (doc.getObject("XZ_Plane"), [""])
sketch22.MapMode = "FlatFace"
sketch22.AttachmentOffset = App.Placement(App.Vector(0, 0, -3.65), App.Rotation())
sketch22.addGeometry([
    Part.LineSegment(App.Vector(5.8, 2.8, 0), App.Vector(5.8, 0.2, 0)),
    Part.LineSegment(App.Vector(5.8, 0.2, 0), App.Vector(3.2, 0.2, 0)),
    Part.LineSegment(App.Vector(3.2, 0.2, 0), App.Vector(3.2, 2.8, 0)),
    Part.LineSegment(App.Vector(3.2, 2.8, 0), App.Vector(5.8, 2.8, 0)),
], False)
sketch22.addConstraint([
    Sketcher.Constraint("Coincident", 0, 2, 1, 1),
    Sketcher.Constraint("Coincident", 1, 2, 2, 1),
    Sketcher.Constraint("Coincident", 2, 2, 3, 1),
    Sketcher.Constraint("Coincident", 3, 2, 0, 1),
    Sketcher.Constraint("Vertical", 0),
    Sketcher.Constraint("Horizontal", 1),
    Sketcher.Constraint("Vertical", 2),
    Sketcher.Constraint("Horizontal", 3),
    Sketcher.Constraint("Equal", 3, 0),
    Sketcher.Constraint("DistanceX", 1, 2, 1, 1, Q("2.5 mm")),
    Sketcher.Constraint("DistanceX", -1, 1, 0, 2, Q("5.75 mm")),
    Sketcher.Constraint("DistanceY", -1, 1, 0, 2, Q("0.25 mm")),
])
pad14 = body.newObject("PartDesign::Pad", "Pad013")
pad14.Profile = sketch22
pad14.Length = 6.35
pad14.Reversed = True

sketch23 = body.newObject("Sketcher::SketchObject", "Sketch022")
sketch23.AttachmentSupport = (doc.getObject("XZ_Plane"), [""])
sketch23.MapMode = "FlatFace"
sketch23.AttachmentOffset = App.Placement(App.Vector(0, 0, -10), App.Rotation())
sketch23.addGeometry([
    Part.LineSegment(App.Vector(5.2, 2.2, 0), App.Vector(5.2, 0.8, 0)),
    Part.LineSegment(App.Vector(5.2, 0.8, 0), App.Vector(3.8, 0.8, 0)),
    Part.LineSegment(App.Vector(3.8, 0.8, 0), App.Vector(3.8, 2.2, 0)),
    Part.LineSegment(App.Vector(3.8, 2.2, 0), App.Vector(5.2, 2.2, 0)),
], False)
sketch23.addConstraint([
    Sketcher.Constraint("Coincident", 0, 2, 1, 1),
    Sketcher.Constraint("Coincident", 1, 2, 2, 1),
    Sketcher.Constraint("Coincident", 2, 2, 3, 1),
    Sketcher.Constraint("Coincident", 3, 2, 0, 1),
    Sketcher.Constraint("Vertical", 0),
    Sketcher.Constraint("Horizontal", 1),
    Sketcher.Constraint("Vertical", 2),
    Sketcher.Constraint("Horizontal", 3),
    Sketcher.Constraint("DistanceY", 0, 2, 0, 1, Q("1.5 mm")),
    Sketcher.Constraint("DistanceX", 1, 2, 1, 1, Q("1.47 mm")),
    Sketcher.Constraint("DistanceY", -1, 1, 0, 2, Q("0.75 mm")),
    Sketcher.Constraint("DistanceX", -1, 1, 0, 2, Q("5.235 mm")),
])
pocket9 = body.newObject("PartDesign::Pocket", "Pocket008")
pocket9.Profile = sketch23
pocket9.Length = 5.8
pocket9.Reversed = True

sketch24 = body.newObject("Sketcher::SketchObject", "Sketch023")
sketch24.AttachmentSupport = (doc.getObject("XZ_Plane"), [""])
sketch24.MapMode = "FlatFace"
sketch24.AttachmentOffset = App.Placement(App.Vector(0, 0, -3.65), App.Rotation())
sketch24.addGeometry([
    Part.LineSegment(App.Vector(5.8, -0.2, 0), App.Vector(5.8, -2.8, 0)),
    Part.LineSegment(App.Vector(5.8, -2.8, 0), App.Vector(3.2, -2.8, 0)),
    Part.LineSegment(App.Vector(3.2, -2.8, 0), App.Vector(3.2, -0.2, 0)),
    Part.LineSegment(App.Vector(3.2, -0.2, 0), App.Vector(5.8, -0.2, 0)),
], False)
sketch24.addConstraint([
    Sketcher.Constraint("Coincident", 0, 2, 1, 1),
    Sketcher.Constraint("Coincident", 1, 2, 2, 1),
    Sketcher.Constraint("Coincident", 2, 2, 3, 1),
    Sketcher.Constraint("Coincident", 3, 2, 0, 1),
    Sketcher.Constraint("Vertical", 0),
    Sketcher.Constraint("Horizontal", 1),
    Sketcher.Constraint("Vertical", 2),
    Sketcher.Constraint("Horizontal", 3),
    Sketcher.Constraint("Equal", 3, 0),
    Sketcher.Constraint("DistanceX", 1, 2, 1, 1, Q("2.5 mm")),
    Sketcher.Constraint("DistanceX", -1, 1, 0, 2, Q("5.75 mm")),
    Sketcher.Constraint("DistanceY", 0, 2, -1, 1, Q("2.75 mm")),
])
pad15 = body.newObject("PartDesign::Pad", "Pad014")
pad15.Profile = sketch24
pad15.Length = 6.35
pad15.Reversed = True

sketch25 = body.newObject("Sketcher::SketchObject", "Sketch024")
sketch25.AttachmentSupport = (doc.getObject("XZ_Plane"), [""])
sketch25.MapMode = "FlatFace"
sketch25.AttachmentOffset = App.Placement(App.Vector(0, 0, -10), App.Rotation())
sketch25.addGeometry([
    Part.LineSegment(App.Vector(5.2, -0.8, 0), App.Vector(5.2, -2.2, 0)),
    Part.LineSegment(App.Vector(5.2, -2.2, 0), App.Vector(3.8, -2.2, 0)),
    Part.LineSegment(App.Vector(3.8, -2.2, 0), App.Vector(3.8, -0.8, 0)),
    Part.LineSegment(App.Vector(3.8, -0.8, 0), App.Vector(5.2, -0.8, 0)),
], False)
sketch25.addConstraint([
    Sketcher.Constraint("Coincident", 0, 2, 1, 1),
    Sketcher.Constraint("Coincident", 1, 2, 2, 1),
    Sketcher.Constraint("Coincident", 2, 2, 3, 1),
    Sketcher.Constraint("Coincident", 3, 2, 0, 1),
    Sketcher.Constraint("Vertical", 0),
    Sketcher.Constraint("Horizontal", 1),
    Sketcher.Constraint("Vertical", 2),
    Sketcher.Constraint("Horizontal", 3),
    Sketcher.Constraint("DistanceY", 0, 2, 0, 1, Q("1.5 mm")),
    Sketcher.Constraint("DistanceX", 1, 2, 1, 1, Q("1.47 mm")),
    Sketcher.Constraint("DistanceY", 0, 2, -1, 1, Q("2.25 mm")),
    Sketcher.Constraint("DistanceX", -1, 1, 0, 2, Q("5.235 mm")),
])
pocket10 = body.newObject("PartDesign::Pocket", "Pocket009")
pocket10.Profile = sketch25
pocket10.Length = 5.8
pocket10.Reversed = True
doc.recompute()

datumplane = body.newObject("PartDesign::Plane", "DatumPlane")
datumplane.AttachmentSupport = (doc.getObject("XY_Plane"), [""])
datumplane.MapMode = "FlatFace"
datumplane.AttachmentOffset = App.Placement(App.Vector(0, 0, -5.69), App.Rotation())
draft = body.newObject("PartDesign::Draft", "Draft")
draft.Base = (pocket10, faces_at(pocket10, [(0, -0.9, -6.2)]))
draft.NeutralPlane = (datumplane, [""])
draft.Angle = 36.326826
draft.Reversed = True
doc.recompute()

chamfer = body.newObject("PartDesign::Chamfer", "Chamfer")
chamfer.Base = (draft, edges_at(draft, [
    (-3.765, 7.1, -0.75),
    (-5.235, 7.1, -0.75),
    (-3.765, 7.1, 2.25),
    (-5.235, 7.1, 2.25),
    (-0.765, 7.1, 2.25),
    (-2.235, 7.1, 2.25),
    (-0.765, 7.1, -0.75),
    (-2.235, 7.1, -0.75),
    (2.235, 7.1, -0.75),
    (0.765, 7.1, -0.75),
    (2.235, 7.1, 2.25),
    (0.765, 7.1, 2.25),
    (5.235, 7.1, 2.25),
    (3.765, 7.1, 2.25),
    (5.235, 7.1, -0.75),
    (3.765, 7.1, -0.75),
]))
chamfer.Size = 0.25
doc.recompute()

chamfer2 = body.newObject("PartDesign::Chamfer", "Chamfer001")
chamfer2.Base = (chamfer, edges_at(chamfer, [
    (-3.25, 6.825, -0.25),
    (-3.25, 6.825, 2.75),
    (-2.75, 6.825, 2.75),
    (-2.75, 6.825, -0.25),
    (2.75, 6.825, -0.25),
    (2.75, 6.825, 2.75),
    (3.25, 6.825, 2.75),
]))
chamfer2.Size = 0.7
doc.recompute()

chamfer3 = body.newObject("PartDesign::Chamfer", "Chamfer002")
chamfer3.Base = (chamfer2, edges_at(chamfer2, [(0, 8.6, -4.28)]))
chamfer3.Size = 0.5
doc.recompute()

fillet = body.newObject("PartDesign::Fillet", "Fillet")
fillet.Base = (chamfer3, edges_at(chamfer3, [
    (4.575, -3.15, -4.14),
    (-4.58, -3.15, -4.14),
    (-1.93, 2.055, -3.43),
    (1.93, 2.055, -3.43),
    (-0.005, -3.15, 4.14),
]))
fillet.Radius = 0.25
doc.recompute()

fillet2 = body.newObject("PartDesign::Fillet", "Fillet001")
fillet2.Base = (fillet, edges_at(fillet, [(0, 2.51, -4.28), (0, 1.6, -4.28)]))
fillet2.Radius = 0.5

doc.recompute()
